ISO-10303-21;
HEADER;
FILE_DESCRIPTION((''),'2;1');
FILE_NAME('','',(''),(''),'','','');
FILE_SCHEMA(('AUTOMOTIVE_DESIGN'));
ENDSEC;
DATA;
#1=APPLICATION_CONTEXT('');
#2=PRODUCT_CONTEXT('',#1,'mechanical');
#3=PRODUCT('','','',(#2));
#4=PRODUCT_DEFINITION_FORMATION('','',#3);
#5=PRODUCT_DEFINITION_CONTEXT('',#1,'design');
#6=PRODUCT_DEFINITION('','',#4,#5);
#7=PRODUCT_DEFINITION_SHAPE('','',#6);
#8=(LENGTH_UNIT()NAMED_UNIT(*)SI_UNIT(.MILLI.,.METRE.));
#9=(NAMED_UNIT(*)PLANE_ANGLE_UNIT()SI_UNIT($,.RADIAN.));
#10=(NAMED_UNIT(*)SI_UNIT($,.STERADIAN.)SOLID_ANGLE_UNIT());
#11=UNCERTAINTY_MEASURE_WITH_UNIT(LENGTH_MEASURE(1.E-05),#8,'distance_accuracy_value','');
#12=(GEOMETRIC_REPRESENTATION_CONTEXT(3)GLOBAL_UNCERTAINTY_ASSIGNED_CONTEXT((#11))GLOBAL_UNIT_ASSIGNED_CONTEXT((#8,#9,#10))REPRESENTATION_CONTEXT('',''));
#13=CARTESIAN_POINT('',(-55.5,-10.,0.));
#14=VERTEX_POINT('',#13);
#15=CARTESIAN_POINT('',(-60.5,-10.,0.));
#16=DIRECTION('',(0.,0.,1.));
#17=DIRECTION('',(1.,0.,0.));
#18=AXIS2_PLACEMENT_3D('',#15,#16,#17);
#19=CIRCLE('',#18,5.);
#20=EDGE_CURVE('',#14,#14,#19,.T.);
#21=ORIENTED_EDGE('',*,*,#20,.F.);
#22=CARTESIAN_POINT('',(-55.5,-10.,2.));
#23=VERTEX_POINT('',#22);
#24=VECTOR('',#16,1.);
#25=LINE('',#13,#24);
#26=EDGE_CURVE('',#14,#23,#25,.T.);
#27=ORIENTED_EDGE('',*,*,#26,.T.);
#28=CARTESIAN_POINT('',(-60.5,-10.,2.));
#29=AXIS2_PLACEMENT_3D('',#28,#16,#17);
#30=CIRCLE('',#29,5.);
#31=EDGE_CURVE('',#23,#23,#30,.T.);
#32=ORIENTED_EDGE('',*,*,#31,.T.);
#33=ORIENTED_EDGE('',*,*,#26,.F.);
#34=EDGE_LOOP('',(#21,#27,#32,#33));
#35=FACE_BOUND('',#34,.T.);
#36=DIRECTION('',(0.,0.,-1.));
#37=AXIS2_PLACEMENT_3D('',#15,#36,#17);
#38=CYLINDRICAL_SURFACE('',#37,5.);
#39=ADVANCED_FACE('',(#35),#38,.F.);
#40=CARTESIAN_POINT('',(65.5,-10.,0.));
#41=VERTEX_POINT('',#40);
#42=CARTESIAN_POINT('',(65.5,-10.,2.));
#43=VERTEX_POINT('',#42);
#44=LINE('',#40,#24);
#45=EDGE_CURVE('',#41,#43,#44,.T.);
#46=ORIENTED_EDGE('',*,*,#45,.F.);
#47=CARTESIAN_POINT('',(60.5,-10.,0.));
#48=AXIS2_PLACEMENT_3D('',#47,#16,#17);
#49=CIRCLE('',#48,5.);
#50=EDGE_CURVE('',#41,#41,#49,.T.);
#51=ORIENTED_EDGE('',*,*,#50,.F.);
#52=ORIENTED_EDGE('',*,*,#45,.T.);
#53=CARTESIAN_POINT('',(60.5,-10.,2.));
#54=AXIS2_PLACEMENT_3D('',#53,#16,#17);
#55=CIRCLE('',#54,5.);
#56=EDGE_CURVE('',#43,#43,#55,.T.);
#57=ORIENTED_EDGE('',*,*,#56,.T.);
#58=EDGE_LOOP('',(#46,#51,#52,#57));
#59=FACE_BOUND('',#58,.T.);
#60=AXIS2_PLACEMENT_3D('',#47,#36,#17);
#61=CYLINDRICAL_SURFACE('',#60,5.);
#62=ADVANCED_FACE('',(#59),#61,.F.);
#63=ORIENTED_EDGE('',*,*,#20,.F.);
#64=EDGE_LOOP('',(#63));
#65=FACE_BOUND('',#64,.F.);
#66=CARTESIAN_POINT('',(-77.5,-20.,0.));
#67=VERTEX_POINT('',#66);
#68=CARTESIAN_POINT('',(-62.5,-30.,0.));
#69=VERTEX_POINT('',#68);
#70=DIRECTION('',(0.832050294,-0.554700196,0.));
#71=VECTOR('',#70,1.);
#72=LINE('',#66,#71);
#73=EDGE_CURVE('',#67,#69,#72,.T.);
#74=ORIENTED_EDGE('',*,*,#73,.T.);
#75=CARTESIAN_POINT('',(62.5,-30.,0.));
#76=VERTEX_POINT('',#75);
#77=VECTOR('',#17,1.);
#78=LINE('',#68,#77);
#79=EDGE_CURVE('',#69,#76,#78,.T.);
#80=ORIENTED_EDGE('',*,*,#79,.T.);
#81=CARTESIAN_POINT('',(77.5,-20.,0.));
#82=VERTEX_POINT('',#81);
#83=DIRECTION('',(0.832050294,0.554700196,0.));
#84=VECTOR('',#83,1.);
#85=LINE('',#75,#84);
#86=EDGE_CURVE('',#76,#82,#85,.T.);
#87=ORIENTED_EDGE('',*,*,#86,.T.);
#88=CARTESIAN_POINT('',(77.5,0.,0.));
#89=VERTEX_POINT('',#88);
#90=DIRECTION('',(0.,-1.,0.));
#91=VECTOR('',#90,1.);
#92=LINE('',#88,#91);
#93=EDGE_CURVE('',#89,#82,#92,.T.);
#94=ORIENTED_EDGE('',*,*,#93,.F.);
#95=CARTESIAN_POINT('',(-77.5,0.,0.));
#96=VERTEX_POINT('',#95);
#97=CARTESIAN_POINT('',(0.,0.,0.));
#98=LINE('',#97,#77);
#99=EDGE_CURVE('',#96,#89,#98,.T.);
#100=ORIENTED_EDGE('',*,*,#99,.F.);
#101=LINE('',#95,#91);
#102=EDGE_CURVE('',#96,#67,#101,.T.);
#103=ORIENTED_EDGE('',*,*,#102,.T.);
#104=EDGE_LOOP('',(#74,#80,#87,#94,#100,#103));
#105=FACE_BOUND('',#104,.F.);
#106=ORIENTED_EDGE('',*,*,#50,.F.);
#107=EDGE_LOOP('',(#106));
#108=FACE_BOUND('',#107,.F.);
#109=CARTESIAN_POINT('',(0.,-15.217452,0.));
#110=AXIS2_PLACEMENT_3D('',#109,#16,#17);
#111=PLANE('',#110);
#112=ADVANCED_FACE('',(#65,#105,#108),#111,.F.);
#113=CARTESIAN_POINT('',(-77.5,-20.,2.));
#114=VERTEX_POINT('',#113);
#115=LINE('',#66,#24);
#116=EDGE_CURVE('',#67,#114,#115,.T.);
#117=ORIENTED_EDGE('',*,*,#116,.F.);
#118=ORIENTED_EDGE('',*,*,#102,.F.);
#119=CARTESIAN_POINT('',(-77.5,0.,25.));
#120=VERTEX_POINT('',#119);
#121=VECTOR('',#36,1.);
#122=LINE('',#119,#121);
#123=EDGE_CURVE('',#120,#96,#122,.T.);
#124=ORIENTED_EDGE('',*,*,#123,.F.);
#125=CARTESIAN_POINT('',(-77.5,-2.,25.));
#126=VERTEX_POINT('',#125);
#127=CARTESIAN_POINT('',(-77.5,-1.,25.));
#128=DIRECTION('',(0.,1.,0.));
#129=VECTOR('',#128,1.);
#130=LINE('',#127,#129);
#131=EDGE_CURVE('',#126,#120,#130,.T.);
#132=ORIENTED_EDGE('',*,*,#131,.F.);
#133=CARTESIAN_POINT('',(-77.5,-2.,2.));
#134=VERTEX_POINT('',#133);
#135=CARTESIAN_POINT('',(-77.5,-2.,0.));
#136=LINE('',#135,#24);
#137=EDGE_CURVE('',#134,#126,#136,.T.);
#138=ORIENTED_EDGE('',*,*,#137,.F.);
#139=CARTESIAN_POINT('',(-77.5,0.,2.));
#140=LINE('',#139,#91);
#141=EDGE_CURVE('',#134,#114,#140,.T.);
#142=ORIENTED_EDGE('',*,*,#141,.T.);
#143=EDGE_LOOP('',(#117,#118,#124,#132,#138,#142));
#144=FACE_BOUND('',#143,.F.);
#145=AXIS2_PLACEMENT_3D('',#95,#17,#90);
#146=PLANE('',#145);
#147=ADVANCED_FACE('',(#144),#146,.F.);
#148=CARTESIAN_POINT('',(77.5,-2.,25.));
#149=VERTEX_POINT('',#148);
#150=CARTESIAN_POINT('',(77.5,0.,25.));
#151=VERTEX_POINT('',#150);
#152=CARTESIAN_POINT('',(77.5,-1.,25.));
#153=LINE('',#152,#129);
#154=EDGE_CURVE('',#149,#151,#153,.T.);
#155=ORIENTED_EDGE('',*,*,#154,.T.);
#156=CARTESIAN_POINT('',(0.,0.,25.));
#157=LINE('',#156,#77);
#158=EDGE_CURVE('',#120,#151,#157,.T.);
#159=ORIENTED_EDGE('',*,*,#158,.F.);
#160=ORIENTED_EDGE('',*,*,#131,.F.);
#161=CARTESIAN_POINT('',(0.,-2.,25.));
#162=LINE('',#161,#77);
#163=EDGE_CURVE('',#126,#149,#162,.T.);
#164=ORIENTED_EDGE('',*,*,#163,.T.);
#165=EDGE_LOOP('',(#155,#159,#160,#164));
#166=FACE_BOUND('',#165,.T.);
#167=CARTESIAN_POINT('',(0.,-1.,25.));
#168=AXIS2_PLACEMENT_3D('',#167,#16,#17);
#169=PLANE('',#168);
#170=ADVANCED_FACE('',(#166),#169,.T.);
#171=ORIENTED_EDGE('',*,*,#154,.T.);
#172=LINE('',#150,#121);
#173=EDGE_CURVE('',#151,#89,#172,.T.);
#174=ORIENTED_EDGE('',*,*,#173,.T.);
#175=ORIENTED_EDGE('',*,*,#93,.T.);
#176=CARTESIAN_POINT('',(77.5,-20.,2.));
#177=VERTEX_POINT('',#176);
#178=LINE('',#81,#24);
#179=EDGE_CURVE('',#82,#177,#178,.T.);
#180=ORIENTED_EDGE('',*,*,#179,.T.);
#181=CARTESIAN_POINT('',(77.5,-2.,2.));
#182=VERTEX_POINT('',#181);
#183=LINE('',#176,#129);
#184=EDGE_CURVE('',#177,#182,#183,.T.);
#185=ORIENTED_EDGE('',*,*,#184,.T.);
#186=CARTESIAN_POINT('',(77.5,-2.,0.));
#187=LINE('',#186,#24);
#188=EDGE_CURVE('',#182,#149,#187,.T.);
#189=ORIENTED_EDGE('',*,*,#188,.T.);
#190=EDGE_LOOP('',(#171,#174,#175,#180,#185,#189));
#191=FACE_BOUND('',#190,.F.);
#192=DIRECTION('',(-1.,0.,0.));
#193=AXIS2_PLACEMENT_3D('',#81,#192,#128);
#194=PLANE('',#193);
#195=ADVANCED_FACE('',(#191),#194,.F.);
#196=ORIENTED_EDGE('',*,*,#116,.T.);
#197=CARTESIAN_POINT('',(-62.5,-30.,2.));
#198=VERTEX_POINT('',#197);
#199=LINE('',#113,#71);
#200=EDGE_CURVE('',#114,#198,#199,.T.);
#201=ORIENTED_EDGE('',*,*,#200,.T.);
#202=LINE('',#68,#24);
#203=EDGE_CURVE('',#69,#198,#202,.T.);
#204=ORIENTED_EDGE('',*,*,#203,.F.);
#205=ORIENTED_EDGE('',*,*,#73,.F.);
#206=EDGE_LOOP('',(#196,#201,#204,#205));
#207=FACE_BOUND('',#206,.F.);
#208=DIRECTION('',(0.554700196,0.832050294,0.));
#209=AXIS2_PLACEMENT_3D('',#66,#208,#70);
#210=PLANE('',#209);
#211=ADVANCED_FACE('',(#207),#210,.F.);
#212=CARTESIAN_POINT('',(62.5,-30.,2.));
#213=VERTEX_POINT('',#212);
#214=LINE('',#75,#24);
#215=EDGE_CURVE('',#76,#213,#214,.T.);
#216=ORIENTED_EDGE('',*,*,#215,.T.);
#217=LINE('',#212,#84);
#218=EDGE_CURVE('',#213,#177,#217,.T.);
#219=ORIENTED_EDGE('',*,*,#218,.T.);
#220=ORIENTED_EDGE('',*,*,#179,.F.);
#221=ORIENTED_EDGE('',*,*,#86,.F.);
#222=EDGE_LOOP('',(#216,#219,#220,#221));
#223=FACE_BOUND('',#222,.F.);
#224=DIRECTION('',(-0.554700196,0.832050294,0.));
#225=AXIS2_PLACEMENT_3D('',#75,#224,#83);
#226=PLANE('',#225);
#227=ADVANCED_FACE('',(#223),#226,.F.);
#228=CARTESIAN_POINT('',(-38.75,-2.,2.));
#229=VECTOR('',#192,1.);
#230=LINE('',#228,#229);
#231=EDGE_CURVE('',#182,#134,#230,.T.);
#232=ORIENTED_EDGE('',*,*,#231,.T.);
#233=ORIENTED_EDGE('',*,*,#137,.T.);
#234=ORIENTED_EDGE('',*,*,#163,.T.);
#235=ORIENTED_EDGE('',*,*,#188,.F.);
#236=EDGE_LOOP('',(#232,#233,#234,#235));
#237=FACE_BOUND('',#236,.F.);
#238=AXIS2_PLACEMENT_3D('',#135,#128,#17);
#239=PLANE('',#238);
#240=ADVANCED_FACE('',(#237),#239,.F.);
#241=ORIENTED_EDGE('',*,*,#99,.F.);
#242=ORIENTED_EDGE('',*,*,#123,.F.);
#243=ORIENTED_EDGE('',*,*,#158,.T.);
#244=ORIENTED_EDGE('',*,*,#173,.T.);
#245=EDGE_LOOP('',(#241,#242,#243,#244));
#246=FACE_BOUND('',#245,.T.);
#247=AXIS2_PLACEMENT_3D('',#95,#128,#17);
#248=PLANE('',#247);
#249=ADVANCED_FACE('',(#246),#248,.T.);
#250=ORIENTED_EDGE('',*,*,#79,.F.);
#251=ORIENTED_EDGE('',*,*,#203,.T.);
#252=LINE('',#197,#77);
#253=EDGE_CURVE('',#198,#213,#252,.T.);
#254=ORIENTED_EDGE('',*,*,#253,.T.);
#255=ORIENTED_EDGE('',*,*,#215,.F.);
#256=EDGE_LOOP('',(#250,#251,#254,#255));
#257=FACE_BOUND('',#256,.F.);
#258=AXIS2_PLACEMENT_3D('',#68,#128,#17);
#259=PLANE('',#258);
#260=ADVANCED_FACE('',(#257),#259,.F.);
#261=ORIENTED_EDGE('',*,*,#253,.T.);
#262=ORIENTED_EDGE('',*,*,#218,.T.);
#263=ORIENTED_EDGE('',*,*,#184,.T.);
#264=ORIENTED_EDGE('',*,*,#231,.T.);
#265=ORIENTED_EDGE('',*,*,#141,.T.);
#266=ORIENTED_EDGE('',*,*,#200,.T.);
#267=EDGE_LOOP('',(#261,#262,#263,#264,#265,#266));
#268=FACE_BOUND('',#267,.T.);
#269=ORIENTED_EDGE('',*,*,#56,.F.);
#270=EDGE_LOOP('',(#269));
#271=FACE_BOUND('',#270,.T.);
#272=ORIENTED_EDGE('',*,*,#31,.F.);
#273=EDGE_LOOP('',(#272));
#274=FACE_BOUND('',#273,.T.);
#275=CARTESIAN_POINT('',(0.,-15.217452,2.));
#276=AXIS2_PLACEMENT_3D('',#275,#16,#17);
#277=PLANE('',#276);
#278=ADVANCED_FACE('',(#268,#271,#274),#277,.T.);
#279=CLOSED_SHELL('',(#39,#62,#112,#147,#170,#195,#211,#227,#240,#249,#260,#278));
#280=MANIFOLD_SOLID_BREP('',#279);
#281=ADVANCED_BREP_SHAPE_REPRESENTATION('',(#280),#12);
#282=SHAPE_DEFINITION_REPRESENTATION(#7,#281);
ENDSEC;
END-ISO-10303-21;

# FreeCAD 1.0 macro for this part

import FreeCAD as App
import Part
import Sketcher
from FreeCAD import Vector
Q = App.Units.Quantity

doc = App.newDocument("Part")
params = doc.addObject("Spreadsheet::Sheet", "Params")
for row, (alias, value) in enumerate([
    ("sketch1_diameter", "10 mm"),
    ("sketch1_width", "125 mm"),
    ("sketch1_width2", "155 mm"),
    ("sketch1_height", "20 mm"),
    ("pad1_length", "2 mm"),
    ("sketch2_width", "155 mm"),
    ("sketch2_height", "2 mm"),
    ("pad2_length", "25 mm"),
], start=1):
    params.set(f"A{row}", alias)
    params.set(f"B{row}", "=" + value)
    params.setAlias(f"B{row}", alias)

body = doc.addObject("PartDesign::Body", "Body")

sketch1 = body.newObject("Sketcher::SketchObject", "Sketch")
sketch1.AttachmentSupport = (doc.getObject("XY_Plane"), [""])
sketch1.MapMode = "FlatFace"
sketch1.addGeometry(Part.LineSegment(Vector(-78, -20, 0), Vector(-62, -30, 0)), False)
sketch1.addGeometry(Part.LineSegment(Vector(-62, -30, 0), Vector(62, -30, 0)), False)
sketch1.addGeometry(Part.LineSegment(Vector(62, -30, 0), Vector(78, -20, 0)), False)
sketch1.addGeometry(Part.LineSegment(Vector(78, -20, 0), Vector(78, 0, 0)), False)
sketch1.addGeometry(Part.LineSegment(Vector(78, 0, 0), Vector(-78, 0, 0)), False)
sketch1.addGeometry(Part.LineSegment(Vector(-78, 0, 0), Vector(-78, -20, 0)), False)
sketch1.addGeometry(Part.Circle(Vector(-60, -10, 0), Vector(0, 0, 1), 5), False)
sketch1.addGeometry(Part.Circle(Vector(60, -10, 0), Vector(0, 0, 1), 5), False)
sketch1.addConstraint(Sketcher.Constraint("Coincident", 0, 2, 1, 1))
sketch1.addConstraint(Sketcher.Constraint("Coincident", 1, 2, 2, 1))
sketch1.addConstraint(Sketcher.Constraint("Coincident", 2, 2, 3, 1))
sketch1.addConstraint(Sketcher.Constraint("Coincident", 3, 2, 4, 1))
sketch1.addConstraint(Sketcher.Constraint("Coincident", 4, 2, 5, 1))
sketch1.addConstraint(Sketcher.Constraint("Coincident", 5, 2, 0, 1))
sketch1.addConstraint(Sketcher.Constraint("Horizontal", 1))
sketch1.addConstraint(Sketcher.Constraint("Vertical", 3))
sketch1.addConstraint(Sketcher.Constraint("Horizontal", 4))
sketch1.addConstraint(Sketcher.Constraint("Vertical", 5))
sketch1.addConstraint(Sketcher.Constraint("Equal", 6, 7))
sketch1.addConstraint(Sketcher.Constraint("Symmetric", 3, 2, 4, 2, -1, 1))
sketch1.addConstraint(Sketcher.Constraint("Symmetric", 6, 3, 7, 3, -2))
sketch1.addConstraint(Sketcher.Constraint("Horizontal", 2, 2, 5, 2))
sketch1.addConstraint(Sketcher.Constraint("Equal", 0, 2))
sketch1.addConstraint(Sketcher.Constraint("Diameter", 6, Q("10 mm")))
sketch1.addConstraint(Sketcher.Constraint("DistanceX", 1, 1, 1, 2, Q("125 mm")))
sketch1.addConstraint(Sketcher.Constraint("DistanceX", 4, 2, 4, 1, Q("155 mm")))
sketch1.addConstraint(Sketcher.Constraint("DistanceY", 3, 1, 3, 2, Q("20 mm")))
sketch1.addConstraint(Sketcher.Constraint("DistanceY", 6, 3, -1, 1, Q("10 mm")))
sketch1.addConstraint(Sketcher.Constraint("DistanceY", 0, 2, -1, 1, Q("30 mm")))
sketch1.addConstraint(Sketcher.Constraint("DistanceX", 6, 3, 7, 3, Q("121 mm")))
sketch1.setExpression("Constraints[15]", "Params.sketch1_diameter")
sketch1.setExpression("Constraints[16]", "Params.sketch1_width")
sketch1.setExpression("Constraints[17]", "Params.sketch1_width2")
sketch1.setExpression("Constraints[18]", "Params.sketch1_height")
pad1 = body.newObject("PartDesign::Pad", "Pad")
pad1.Profile = sketch1
pad1.setExpression("Length", "Params.pad1_length")

sketch2 = body.newObject("Sketcher::SketchObject", "Sketch001")
sketch2.AttachmentSupport = (doc.getObject("XY_Plane"), [""])
sketch2.MapMode = "FlatFace"
sketch2.addGeometry(Part.LineSegment(Vector(-77.5, 0, 0), Vector(-77.5, -2, 0)), False)
sketch2.addGeometry(Part.LineSegment(Vector(-77.5, -2, 0), Vector(77.5, -2, 0)), False)
sketch2.addGeometry(Part.LineSegment(Vector(77.5, -2, 0), Vector(77.5, 0, 0)), False)
sketch2.addGeometry(Part.LineSegment(Vector(77.5, 0, 0), Vector(-77.5, 0, 0)), False)
sketch2.addConstraint(Sketcher.Constraint("Coincident", 0, 2, 1, 1))
sketch2.addConstraint(Sketcher.Constraint("Coincident", 1, 2, 2, 1))
sketch2.addConstraint(Sketcher.Constraint("Coincident", 2, 2, 3, 1))
sketch2.addConstraint(Sketcher.Constraint("Coincident", 3, 2, 0, 1))
sketch2.addConstraint(Sketcher.Constraint("Vertical", 0))
sketch2.addConstraint(Sketcher.Constraint("Horizontal", 1))
sketch2.addConstraint(Sketcher.Constraint("Vertical", 2))
sketch2.addConstraint(Sketcher.Constraint("Horizontal", 3))
sketch2.addConstraint(Sketcher.Constraint("Symmetric", 2, 2, 3, 2, -1, 1))
sketch2.addConstraint(Sketcher.Constraint("DistanceX", 1, 1, 1, 2, Q("155 mm")))
sketch2.addConstraint(Sketcher.Constraint("DistanceY", 0, 2, 0, 1, Q("2 mm")))
sketch2.setExpression("Constraints[9]", "Params.sketch2_width")
sketch2.setExpression("Constraints[10]", "Params.sketch2_height")
pad2 = body.newObject("PartDesign::Pad", "Pad001")
pad2.Profile = sketch2
pad2.setExpression("Length", "Params.pad2_length")

doc.recompute()
